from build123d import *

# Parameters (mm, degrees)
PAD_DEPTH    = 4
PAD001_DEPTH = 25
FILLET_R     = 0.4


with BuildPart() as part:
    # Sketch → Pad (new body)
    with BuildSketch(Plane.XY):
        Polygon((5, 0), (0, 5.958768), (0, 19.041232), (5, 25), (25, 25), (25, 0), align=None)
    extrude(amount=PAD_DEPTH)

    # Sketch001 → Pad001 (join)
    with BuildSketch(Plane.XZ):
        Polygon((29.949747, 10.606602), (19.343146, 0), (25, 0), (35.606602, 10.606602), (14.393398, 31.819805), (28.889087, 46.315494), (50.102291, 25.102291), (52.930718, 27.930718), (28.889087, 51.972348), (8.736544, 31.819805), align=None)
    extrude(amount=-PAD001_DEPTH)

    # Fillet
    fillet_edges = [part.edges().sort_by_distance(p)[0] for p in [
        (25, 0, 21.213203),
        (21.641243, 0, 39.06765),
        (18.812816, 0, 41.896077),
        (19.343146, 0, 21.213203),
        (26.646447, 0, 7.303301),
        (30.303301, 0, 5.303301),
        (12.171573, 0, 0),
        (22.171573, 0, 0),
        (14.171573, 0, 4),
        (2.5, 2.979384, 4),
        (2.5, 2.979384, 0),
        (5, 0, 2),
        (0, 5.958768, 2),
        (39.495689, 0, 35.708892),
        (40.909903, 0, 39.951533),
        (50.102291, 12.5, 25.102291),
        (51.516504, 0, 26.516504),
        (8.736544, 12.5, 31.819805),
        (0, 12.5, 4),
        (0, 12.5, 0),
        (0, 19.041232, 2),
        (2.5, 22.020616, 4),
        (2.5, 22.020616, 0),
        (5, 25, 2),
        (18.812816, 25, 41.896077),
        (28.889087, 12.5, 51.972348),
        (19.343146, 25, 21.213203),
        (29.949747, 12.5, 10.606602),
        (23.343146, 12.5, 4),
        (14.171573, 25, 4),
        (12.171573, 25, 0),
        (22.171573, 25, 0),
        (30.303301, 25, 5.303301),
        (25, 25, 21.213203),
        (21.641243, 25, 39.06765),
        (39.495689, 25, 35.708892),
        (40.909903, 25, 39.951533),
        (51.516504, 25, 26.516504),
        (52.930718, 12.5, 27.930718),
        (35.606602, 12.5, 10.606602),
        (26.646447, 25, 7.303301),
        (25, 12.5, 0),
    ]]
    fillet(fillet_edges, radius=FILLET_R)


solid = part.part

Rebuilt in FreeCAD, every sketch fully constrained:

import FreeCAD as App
import Part
import Sketcher

V = App.Vector
Q = App.Units.Quantity


def edges_at(feature, points):
    """Names of the edges that pass closest to the given points."""
    edges = feature.Shape.Edges
    near = lambda p: min(range(len(edges)), key=lambda i: edges[i].distToShape(Part.Vertex(*p))[0])
    return sorted({f"Edge{near(p) + 1}" for p in points})

doc = App.newDocument("Part")
body = doc.addObject("PartDesign::Body", "Body")

sketch1 = body.newObject("Sketcher::SketchObject", "Sketch")
sketch1.AttachmentSupport = (doc.getObject("XY_Plane"), [""])
sketch1.MapMode = "FlatFace"
sketch1.addGeometry([
    Part.LineSegment(V(0, 6, 0), V(5, 0, 0)),
    Part.LineSegment(V(5, 0, 0), V(25, 0, 0)),
    Part.LineSegment(V(25, 0, 0), V(25, 25, 0)),
    Part.LineSegment(V(25, 25, 0), V(5, 25, 0)),
    Part.LineSegment(V(5, 25, 0), V(0, 19, 0)),
    Part.LineSegment(V(0, 19, 0), V(0, 6, 0)),
], False)
sketch1.addConstraint([
    Sketcher.Constraint("Coincident", 0, 2, 1, 1),
    Sketcher.Constraint("Coincident", 1, 2, 2, 1),
    Sketcher.Constraint("Coincident", 2, 2, 3, 1),
    Sketcher.Constraint("Coincident", 3, 2, 4, 1),
    Sketcher.Constraint("Coincident", 4, 2, 5, 1),
    Sketcher.Constraint("Coincident", 5, 2, 0, 1),
    Sketcher.Constraint("Horizontal", 1),
    Sketcher.Constraint("Vertical", 2),
    Sketcher.Constraint("Horizontal", 3),
    Sketcher.Constraint("Vertical", 5),
    Sketcher.Constraint("PointOnObject", 0, 2, -1),
    Sketcher.Constraint("PointOnObject", 4, 2, -2),
    Sketcher.Constraint("Vertical", 0, 2, 3, 2),
    Sketcher.Constraint("Equal", 0, 4),
    Sketcher.Constraint("DistanceX", 1, 1, 1, 2, Q("20 mm")),
    Sketcher.Constraint("DistanceY", 2, 1, 2, 2, Q("25 mm")),
    Sketcher.Constraint("Angle", 0, Q("-50 deg")),
    Sketcher.Constraint("DistanceX", -1, 1, 0, 2, Q("5 mm")),
])
pad1 = body.newObject("PartDesign::Pad", "Pad")
pad1.Profile = sketch1
pad1.Length = 4

sketch2 = body.newObject("Sketcher::SketchObject", "Sketch001")
sketch2.AttachmentSupport = (doc.getObject("XZ_Plane"), [""])
sketch2.MapMode = "FlatFace"
sketch2.addGeometry([
    Part.LineSegment(V(29.9, 10.6, 0), V(19.3, 0, 0)),
    Part.LineSegment(V(19.3, 0, 0), V(25, 0, 0)),
    Part.LineSegment(V(25, 0, 0), V(35.6, 10.6, 0)),
    Part.LineSegment(V(35.6, 10.6, 0), V(14.4, 31.8, 0)),
    Part.LineSegment(V(14.4, 31.8, 0), V(28.9, 46.3, 0)),
    Part.LineSegment(V(28.9, 46.3, 0), V(50.1, 25.1, 0)),
    Part.LineSegment(V(50.1, 25.1, 0), V(52.9, 27.9, 0)),
    Part.LineSegment(V(52.9, 27.9, 0), V(28.9, 52, 0)),
    Part.LineSegment(V(28.9, 52, 0), V(8.7, 31.8, 0)),
    Part.LineSegment(V(8.7, 31.8, 0), V(29.9, 10.6, 0)),
], False)
sketch2.addConstraint([
    Sketcher.Constraint("Coincident", 0, 2, 1, 1),
    Sketcher.Constraint("Coincident", 1, 2, 2, 1),
    Sketcher.Constraint("Coincident", 2, 2, 3, 1),
    Sketcher.Constraint("Coincident", 3, 2, 4, 1),
    Sketcher.Constraint("Coincident", 4, 2, 5, 1),
    Sketcher.Constraint("Coincident", 5, 2, 6, 1),
    Sketcher.Constraint("Coincident", 6, 2, 7, 1),
    Sketcher.Constraint("Coincident", 7, 2, 8, 1),
    Sketcher.Constraint("Coincident", 8, 2, 9, 1),
    Sketcher.Constraint("Coincident", 9, 2, 0, 1),
    Sketcher.Constraint("Horizontal", 1),
    Sketcher.Constraint("PointOnObject", 0, 2, -1),
    Sketcher.Constraint("Parallel", 0, 2),
    Sketcher.Constraint("Perpendicular", 2, 3),
    Sketcher.Constraint("Perpendicular", 3, 4),
    Sketcher.Constraint("Perpendicular", 4, 5),
    Sketcher.Constraint("Perpendicular", 5, 6),
    Sketcher.Constraint("Perpendicular", 6, 7),
    Sketcher.Constraint("Perpendicular", 7, 8),
    Sketcher.Constraint("Perpendicular", 8, 9),
    Sketcher.Constraint("Horizontal", 3, 2, 8, 2),
    Sketcher.Constraint("Horizontal", 2, 2, 9, 2),
    Sketcher.Constraint("Vertical", 4, 2, 7, 2),
    Sketcher.Constraint("Equal", 3, 5),
    Sketcher.Constraint("Angle", 0, Q("-134.999997 deg")),
    Sketcher.Constraint("Distance", 0, Q("15 mm")),
    Sketcher.Constraint("Distance", 3, Q("30 mm")),
    Sketcher.Constraint("Distance", 6, Q("4 mm")),
    Sketcher.Constraint("DistanceX", -1, 1, 1, 2, Q("25 mm")),
    Sketcher.Constraint("Distance", 4, Q("20.5 mm")),
])
pad2 = body.newObject("PartDesign::Pad", "Pad001")
pad2.Profile = sketch2
pad2.Length = 25
pad2.Reversed = True
doc.recompute()

fillet = body.newObject("PartDesign::Fillet", "Fillet")
fillet.Base = (pad2, edges_at(pad2, [
    (25, 0, 21.213),
    (21.641, 0, 39.068),
    (18.813, 0, 41.896),
    (19.343, 0, 21.213),
    (26.646, 0, 7.303),
    (30.303, 0, 5.303),
    (15, 0, 0),
    (15, 0, 0),
    (14.172, 0, 4),
    (2.5, 2.979, 4),
    (2.5, 2.979, 0),
    (5, 0, 2),
    (0, 5.959, 2),
    (39.496, 0, 35.709),
    (40.91, 0, 39.952),
    (50.102, 12.5, 25.102),
    (51.517, 0, 26.517),
    (8.737, 12.5, 31.82),
    (0, 12.5, 4),
    (0, 12.5, 0),
    (0, 19.041, 2),
    (2.5, 22.021, 4),
    (2.5, 22.021, 0),
    (5, 25, 2),
    (18.813, 25, 41.896),
    (28.889, 12.5, 51.972),
    (19.343, 25, 21.213),
    (29.95, 12.5, 10.607),
    (23.343, 12.5, 4),
    (14.172, 25, 4),
    (15, 25, 0),
    (15, 25, 0),
    (30.303, 25, 5.303),
    (25, 25, 21.213),
    (21.641, 25, 39.068),
    (39.496, 25, 35.709),
    (40.91, 25, 39.952),
    (51.517, 25, 26.517),
    (52.931, 12.5, 27.931),
    (35.607, 12.5, 10.607),
    (26.646, 25, 7.303),
    (25, 12.5, 0),
]))
fillet.Radius = 0.4

doc.recompute()
